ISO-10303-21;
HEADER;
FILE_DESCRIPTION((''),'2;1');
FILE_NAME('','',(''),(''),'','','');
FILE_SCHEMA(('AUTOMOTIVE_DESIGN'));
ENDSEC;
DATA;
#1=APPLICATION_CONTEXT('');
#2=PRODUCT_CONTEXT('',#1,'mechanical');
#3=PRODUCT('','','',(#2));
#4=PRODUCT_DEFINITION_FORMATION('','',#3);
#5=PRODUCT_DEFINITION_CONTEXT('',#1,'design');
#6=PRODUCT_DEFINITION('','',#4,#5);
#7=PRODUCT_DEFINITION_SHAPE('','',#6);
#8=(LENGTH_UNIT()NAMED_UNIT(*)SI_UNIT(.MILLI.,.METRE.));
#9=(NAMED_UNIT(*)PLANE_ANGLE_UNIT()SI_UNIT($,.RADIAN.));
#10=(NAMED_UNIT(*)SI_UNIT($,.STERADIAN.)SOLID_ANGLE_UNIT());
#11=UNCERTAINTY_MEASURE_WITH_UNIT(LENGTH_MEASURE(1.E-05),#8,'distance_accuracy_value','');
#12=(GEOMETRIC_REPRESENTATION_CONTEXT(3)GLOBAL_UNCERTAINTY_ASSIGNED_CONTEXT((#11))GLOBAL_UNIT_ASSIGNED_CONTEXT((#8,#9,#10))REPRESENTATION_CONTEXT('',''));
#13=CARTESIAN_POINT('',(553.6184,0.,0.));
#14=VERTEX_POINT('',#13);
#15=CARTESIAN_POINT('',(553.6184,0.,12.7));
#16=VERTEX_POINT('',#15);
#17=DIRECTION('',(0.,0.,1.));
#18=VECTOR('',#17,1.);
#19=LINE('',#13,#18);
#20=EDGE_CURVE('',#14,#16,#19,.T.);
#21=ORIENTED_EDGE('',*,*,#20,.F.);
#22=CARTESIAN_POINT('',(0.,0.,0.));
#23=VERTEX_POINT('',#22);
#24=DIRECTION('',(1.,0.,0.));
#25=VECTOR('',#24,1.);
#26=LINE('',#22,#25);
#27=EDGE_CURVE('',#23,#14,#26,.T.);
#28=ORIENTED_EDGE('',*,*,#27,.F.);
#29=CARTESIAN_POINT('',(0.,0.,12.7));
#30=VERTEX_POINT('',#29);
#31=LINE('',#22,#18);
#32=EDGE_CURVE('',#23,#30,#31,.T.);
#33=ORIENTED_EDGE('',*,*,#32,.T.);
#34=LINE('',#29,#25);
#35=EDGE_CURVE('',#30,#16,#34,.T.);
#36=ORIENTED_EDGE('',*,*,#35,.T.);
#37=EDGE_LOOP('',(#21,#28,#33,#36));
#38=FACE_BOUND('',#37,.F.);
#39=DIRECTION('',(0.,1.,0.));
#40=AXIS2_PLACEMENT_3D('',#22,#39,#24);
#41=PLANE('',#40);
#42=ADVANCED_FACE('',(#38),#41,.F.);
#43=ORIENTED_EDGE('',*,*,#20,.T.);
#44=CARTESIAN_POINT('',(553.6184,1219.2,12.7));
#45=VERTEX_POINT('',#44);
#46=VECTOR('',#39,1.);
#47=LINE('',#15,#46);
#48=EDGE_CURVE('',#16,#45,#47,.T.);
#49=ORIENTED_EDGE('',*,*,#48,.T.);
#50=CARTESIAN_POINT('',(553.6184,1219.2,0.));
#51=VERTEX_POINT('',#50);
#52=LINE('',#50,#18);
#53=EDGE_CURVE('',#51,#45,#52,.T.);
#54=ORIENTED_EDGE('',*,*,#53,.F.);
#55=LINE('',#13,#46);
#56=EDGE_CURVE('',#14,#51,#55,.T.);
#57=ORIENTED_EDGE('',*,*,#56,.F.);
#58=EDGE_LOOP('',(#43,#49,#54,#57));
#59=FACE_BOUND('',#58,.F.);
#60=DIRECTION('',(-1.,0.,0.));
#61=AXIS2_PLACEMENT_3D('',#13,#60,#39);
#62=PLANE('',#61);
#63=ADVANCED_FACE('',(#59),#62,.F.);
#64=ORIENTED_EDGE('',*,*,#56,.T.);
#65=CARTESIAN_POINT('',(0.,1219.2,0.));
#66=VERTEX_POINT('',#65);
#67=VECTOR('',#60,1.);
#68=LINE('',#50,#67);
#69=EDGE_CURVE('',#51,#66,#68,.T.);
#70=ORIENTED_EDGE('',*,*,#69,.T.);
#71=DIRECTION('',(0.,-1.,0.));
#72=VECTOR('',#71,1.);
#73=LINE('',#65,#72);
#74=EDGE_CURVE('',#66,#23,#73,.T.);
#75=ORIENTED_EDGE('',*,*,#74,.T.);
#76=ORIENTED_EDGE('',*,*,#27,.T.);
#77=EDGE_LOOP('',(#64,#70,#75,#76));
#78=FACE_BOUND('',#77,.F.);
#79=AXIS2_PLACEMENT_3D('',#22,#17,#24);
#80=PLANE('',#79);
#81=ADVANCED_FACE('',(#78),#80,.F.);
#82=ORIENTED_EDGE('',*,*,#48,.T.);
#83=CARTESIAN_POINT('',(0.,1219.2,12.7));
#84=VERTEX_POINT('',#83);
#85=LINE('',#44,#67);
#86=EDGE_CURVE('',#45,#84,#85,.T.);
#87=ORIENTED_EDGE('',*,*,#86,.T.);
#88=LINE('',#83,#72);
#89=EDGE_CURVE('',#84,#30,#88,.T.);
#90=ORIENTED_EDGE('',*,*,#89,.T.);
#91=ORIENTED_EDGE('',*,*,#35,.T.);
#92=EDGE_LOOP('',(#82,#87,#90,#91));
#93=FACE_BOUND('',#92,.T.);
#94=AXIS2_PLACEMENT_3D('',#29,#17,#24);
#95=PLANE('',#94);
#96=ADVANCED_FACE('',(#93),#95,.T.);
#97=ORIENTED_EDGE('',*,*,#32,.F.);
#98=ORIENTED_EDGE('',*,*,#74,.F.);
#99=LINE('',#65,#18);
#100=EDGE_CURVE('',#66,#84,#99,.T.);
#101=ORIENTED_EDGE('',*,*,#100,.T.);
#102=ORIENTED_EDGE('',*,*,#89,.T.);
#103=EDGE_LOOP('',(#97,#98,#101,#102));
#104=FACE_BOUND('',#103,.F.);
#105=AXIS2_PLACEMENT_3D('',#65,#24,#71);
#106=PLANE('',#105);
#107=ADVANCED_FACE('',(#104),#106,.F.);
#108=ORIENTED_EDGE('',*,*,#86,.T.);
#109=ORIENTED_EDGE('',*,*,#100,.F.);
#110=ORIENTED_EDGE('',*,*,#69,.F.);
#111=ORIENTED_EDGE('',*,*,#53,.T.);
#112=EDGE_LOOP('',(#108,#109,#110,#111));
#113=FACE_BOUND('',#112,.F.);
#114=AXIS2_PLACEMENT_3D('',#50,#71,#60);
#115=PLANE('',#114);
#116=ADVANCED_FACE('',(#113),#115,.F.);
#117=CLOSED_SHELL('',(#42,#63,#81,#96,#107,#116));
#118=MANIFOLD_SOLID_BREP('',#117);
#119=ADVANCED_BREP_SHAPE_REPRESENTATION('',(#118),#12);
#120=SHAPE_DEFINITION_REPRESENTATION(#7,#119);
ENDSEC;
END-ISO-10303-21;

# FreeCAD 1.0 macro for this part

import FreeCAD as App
import Part
import Sketcher
from FreeCAD import Vector
Q = App.Units.Quantity

doc = App.newDocument("Part")
body = doc.addObject("PartDesign::Body", "Body")

sketch1 = body.newObject("Sketcher::SketchObject", "Sketch")
sketch1.AttachmentSupport = (doc.getObject("XY_Plane"), [""])
sketch1.MapMode = "FlatFace"
sketch1.addGeometry([
    Part.LineSegment(Vector(0, 1219, 0), Vector(0, 0, 0)),
    Part.LineSegment(Vector(0, 0, 0), Vector(554, 0, 0)),
    Part.LineSegment(Vector(554, 0, 0), Vector(554, 1219, 0)),
    Part.LineSegment(Vector(554, 1219, 0), Vector(0, 1219, 0)),
], False)
sketch1.addConstraint([
    Sketcher.Constraint("Coincident", 0, 2, 1, 1),
    Sketcher.Constraint("Coincident", 1, 2, 2, 1),
    Sketcher.Constraint("Coincident", 2, 2, 3, 1),
    Sketcher.Constraint("Coincident", 3, 2, 0, 1),
    Sketcher.Constraint("Vertical", 0),
    Sketcher.Constraint("Horizontal", 1),
    Sketcher.Constraint("Vertical", 2),
    Sketcher.Constraint("Horizontal", 3),
    Sketcher.Constraint("Coincident", 0, 2, -1, 1),
    Sketcher.Constraint("DistanceY", 0, 2, 0, 1, Q("48 in")),
    Sketcher.Constraint("DistanceX", 1, 1, 1, 2, Q("21.796 in")),
])
pad1 = body.newObject("PartDesign::Pad", "Pad")
pad1.Profile = sketch1
pad1.Length = Q("0.5 in")

doc.recompute()
